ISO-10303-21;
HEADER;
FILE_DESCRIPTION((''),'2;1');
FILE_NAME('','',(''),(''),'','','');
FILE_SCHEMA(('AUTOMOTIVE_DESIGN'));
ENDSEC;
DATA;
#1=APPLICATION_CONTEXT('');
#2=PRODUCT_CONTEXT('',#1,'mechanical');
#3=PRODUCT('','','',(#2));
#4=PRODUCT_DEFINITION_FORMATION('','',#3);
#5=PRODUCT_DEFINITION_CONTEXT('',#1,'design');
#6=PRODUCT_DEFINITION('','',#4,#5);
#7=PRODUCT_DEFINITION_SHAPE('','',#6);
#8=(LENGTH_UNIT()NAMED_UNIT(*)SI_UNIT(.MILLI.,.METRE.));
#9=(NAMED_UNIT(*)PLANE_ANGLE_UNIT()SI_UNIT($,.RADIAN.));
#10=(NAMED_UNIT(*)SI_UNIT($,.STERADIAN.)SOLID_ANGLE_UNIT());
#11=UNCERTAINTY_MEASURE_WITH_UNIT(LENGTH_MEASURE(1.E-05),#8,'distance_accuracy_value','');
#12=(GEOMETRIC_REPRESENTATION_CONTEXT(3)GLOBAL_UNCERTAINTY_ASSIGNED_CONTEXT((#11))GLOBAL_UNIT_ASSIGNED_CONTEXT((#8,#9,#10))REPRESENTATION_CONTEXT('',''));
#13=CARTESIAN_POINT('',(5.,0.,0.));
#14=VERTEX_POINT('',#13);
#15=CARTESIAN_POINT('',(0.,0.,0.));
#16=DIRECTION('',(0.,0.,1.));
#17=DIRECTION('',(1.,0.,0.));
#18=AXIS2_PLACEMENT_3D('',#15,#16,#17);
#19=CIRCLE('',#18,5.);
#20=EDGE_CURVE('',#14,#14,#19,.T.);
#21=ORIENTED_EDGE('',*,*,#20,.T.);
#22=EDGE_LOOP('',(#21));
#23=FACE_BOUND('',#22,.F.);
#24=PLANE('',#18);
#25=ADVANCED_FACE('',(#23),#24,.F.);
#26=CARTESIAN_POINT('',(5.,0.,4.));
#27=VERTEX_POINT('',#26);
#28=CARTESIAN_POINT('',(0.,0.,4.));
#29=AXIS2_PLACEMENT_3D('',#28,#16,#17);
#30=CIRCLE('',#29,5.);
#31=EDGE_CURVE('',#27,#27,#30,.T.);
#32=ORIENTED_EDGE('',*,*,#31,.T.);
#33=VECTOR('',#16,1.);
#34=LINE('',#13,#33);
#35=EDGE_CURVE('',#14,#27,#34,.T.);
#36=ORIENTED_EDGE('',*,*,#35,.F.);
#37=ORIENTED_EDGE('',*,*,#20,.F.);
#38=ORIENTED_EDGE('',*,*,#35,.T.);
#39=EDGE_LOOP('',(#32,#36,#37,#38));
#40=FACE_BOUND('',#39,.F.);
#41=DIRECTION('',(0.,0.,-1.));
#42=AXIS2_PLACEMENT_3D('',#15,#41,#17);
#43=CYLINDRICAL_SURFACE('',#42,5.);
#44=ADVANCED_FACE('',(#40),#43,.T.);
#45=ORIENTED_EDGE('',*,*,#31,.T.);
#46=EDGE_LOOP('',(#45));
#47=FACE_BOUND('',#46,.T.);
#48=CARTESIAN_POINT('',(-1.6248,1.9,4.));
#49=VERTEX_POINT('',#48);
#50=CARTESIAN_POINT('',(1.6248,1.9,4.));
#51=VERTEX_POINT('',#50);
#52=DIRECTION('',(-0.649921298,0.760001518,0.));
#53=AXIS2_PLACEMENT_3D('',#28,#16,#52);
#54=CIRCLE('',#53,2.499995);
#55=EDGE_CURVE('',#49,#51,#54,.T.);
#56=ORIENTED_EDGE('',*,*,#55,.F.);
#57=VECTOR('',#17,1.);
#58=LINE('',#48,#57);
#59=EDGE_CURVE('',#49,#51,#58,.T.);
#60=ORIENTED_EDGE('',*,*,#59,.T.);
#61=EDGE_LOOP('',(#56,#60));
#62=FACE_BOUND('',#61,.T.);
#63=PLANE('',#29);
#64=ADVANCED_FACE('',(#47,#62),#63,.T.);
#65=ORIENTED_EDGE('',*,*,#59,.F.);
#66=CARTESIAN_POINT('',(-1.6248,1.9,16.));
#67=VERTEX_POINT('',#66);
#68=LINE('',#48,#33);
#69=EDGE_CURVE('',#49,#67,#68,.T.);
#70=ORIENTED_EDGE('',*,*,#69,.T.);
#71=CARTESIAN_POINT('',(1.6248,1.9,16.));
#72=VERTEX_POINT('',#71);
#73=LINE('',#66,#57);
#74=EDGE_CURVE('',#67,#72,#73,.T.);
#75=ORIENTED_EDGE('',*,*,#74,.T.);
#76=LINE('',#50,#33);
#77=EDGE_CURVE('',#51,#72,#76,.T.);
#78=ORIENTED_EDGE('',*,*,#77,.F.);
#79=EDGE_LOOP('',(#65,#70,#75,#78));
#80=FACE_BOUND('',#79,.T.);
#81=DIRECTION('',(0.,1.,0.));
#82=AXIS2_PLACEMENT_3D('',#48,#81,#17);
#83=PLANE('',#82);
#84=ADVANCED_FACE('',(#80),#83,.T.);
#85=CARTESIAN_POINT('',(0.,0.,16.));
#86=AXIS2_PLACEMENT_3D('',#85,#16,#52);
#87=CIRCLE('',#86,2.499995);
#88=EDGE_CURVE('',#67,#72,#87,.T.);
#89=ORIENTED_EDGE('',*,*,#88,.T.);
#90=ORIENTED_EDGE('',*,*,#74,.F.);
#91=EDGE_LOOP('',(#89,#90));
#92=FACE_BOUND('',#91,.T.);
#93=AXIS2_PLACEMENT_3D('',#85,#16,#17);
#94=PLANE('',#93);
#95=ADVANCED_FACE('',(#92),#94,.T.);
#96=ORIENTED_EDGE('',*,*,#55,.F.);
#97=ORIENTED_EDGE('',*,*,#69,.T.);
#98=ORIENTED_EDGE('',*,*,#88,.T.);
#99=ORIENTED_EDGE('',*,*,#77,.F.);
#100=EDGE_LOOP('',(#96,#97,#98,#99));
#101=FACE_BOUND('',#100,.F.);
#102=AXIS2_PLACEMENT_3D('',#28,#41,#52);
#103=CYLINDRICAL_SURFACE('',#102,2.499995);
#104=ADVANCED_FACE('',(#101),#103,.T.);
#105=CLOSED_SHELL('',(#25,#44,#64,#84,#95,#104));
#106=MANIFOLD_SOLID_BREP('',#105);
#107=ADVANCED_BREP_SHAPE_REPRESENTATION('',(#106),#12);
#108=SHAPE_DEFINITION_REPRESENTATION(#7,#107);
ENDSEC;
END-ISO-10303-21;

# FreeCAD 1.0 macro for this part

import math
import FreeCAD as App
import Part
import Sketcher

V = App.Vector

doc = App.newDocument("Part")
body = doc.addObject("PartDesign::Body", "Body")

sketch1 = doc.addObject("Sketcher::SketchObject", "Sketch")
body.addObject(sketch1)
sketch1.AttachmentSupport = (doc.XY_Plane, [""])
sketch1.MapMode = "FlatFace"
sketch1.addGeometry(Part.Circle(V(0, 0, 0), V(0, 0, 1), 5), False)
sketch1.addConstraint(Sketcher.Constraint("Coincident", 0, 3, -1, 1))
sketch1.addConstraint(Sketcher.Constraint("Diameter", 0, 10.0))
pad1 = doc.addObject("PartDesign::Pad", "Pad")
body.addObject(pad1)
pad1.Profile = sketch1
pad1.Length = 4

sketch2 = doc.addObject("Sketcher::SketchObject", "Sketch001")
body.addObject(sketch2)
sketch2.AttachmentSupport = (doc.XY_Plane, [""])
sketch2.MapMode = "FlatFace"
sketch2.AttachmentOffset = App.Placement(V(0, 0, 4), App.Rotation())
sketch2.addGeometry(Part.LineSegment(V(1.6, 1.9, 0), V(-1.6, 1.9, 0)), False)
sketch2.addGeometry(Part.ArcOfCircle(Part.Circle(V(0, 0, 0), V(0, 0, 1), 2.5), math.radians(131), math.radians(409)), False)
sketch2.addConstraint(Sketcher.Constraint("Coincident", 0, 1, 1, 2))
sketch2.addConstraint(Sketcher.Constraint("Coincident", 1, 1, 0, 2))
sketch2.addConstraint(Sketcher.Constraint("Horizontal", 0))
sketch2.addConstraint(Sketcher.Constraint("Coincident", 1, 3, -1, 1))
sketch2.addConstraint(Sketcher.Constraint("Radius", 1, 2.5))
sketch2.addConstraint(Sketcher.Constraint("DistanceY", -1, 1, 0, 1, 1.9))
pad2 = doc.addObject("PartDesign::Pad", "Pad001")
body.addObject(pad2)
pad2.Profile = sketch2
pad2.Length = 12

doc.recompute()
